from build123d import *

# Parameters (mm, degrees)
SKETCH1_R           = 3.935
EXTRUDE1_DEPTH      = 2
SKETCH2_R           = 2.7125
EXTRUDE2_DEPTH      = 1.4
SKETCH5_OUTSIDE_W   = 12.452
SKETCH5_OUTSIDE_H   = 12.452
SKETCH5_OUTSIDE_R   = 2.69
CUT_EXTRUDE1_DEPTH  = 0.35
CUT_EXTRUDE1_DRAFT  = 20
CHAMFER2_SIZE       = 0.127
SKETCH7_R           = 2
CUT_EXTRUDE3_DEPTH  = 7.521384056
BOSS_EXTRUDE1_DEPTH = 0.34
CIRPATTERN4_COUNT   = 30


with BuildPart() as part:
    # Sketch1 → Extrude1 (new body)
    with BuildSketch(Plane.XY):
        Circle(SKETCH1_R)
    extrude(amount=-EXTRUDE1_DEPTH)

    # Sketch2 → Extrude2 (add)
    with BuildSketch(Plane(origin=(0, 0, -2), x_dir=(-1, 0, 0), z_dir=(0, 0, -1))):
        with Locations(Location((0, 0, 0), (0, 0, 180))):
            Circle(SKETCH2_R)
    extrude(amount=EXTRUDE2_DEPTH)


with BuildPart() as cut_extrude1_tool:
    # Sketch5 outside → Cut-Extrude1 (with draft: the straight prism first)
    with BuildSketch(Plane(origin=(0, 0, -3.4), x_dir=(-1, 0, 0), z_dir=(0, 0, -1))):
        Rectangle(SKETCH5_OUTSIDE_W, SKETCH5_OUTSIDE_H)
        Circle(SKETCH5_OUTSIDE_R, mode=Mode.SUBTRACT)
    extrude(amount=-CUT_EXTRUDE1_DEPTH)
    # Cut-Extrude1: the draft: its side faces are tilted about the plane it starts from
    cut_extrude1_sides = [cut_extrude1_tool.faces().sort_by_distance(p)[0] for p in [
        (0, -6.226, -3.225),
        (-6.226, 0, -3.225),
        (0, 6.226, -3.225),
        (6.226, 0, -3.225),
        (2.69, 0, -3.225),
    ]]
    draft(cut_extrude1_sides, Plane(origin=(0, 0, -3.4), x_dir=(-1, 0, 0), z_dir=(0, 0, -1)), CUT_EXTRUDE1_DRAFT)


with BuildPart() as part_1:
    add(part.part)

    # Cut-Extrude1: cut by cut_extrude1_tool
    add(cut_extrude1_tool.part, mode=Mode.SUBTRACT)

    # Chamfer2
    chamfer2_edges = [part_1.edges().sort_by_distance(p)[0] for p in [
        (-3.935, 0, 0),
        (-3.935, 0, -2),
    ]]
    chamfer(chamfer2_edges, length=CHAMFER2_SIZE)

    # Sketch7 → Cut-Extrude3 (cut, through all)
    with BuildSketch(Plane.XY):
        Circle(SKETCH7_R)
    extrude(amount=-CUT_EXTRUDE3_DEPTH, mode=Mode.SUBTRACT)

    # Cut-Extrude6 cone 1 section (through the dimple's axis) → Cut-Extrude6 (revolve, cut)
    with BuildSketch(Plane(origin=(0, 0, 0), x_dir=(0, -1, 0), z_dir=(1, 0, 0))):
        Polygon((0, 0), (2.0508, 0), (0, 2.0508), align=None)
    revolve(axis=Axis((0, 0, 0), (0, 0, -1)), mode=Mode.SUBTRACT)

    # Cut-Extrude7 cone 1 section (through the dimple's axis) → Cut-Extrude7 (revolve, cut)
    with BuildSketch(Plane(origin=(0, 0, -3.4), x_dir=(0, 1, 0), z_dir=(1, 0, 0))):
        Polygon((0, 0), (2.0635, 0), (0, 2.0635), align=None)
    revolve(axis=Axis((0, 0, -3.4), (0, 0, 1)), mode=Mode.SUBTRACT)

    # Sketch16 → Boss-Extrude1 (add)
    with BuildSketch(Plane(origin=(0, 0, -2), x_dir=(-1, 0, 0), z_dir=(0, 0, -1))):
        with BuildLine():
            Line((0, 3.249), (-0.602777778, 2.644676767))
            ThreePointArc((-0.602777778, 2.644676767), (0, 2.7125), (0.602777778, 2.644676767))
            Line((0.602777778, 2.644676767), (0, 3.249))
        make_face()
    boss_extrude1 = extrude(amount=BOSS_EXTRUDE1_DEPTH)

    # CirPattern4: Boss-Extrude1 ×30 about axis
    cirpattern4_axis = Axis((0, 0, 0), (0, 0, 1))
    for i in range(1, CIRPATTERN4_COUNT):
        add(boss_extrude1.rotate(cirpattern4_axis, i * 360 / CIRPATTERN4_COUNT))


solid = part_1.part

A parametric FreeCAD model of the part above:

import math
import FreeCAD as App
import Part
import Sketcher


def edges_at(feature, points):
    """Names of the edges that pass closest to the given points."""
    edges = feature.Shape.Edges
    near = lambda p: min(range(len(edges)), key=lambda i: edges[i].distToShape(Part.Vertex(*p))[0])
    return sorted({f"Edge{near(p) + 1}" for p in points})


def faces_at(feature, points):
    """Names of the faces that lie closest to the given points."""
    faces = feature.Shape.Faces
    near = lambda p: min(range(len(faces)), key=lambda i: faces[i].distToShape(Part.Vertex(*p))[0])
    return sorted({f"Face{near(p) + 1}" for p in points})


def add_polygon(sketch, points):
    """Adds a closed chain of lines whose ends are joined by coincident constraints."""
    first, n = sketch.GeometryCount, len(points)
    for a, b in zip(points, points[1:] + points[:1]):
        sketch.addGeometry(Part.LineSegment(App.Vector(*a, 0), App.Vector(*b, 0)), False)
    for i in range(n):
        sketch.addConstraint(Sketcher.Constraint("Coincident", first + i, 2, first + (i + 1) % n, 1))

doc = App.newDocument("Part")
params = doc.addObject("Spreadsheet::Sheet", "Params")
for row, (alias, value) in enumerate([
    ("sketch1_diameter", "7.87 mm"),
    ("pad1_length", "2 mm"),
    ("pad2_length", "1.4 mm"),
    ("sketch3_diameter", "5.38 mm"),
    ("pad3_length", "0.35 mm"),
    ("draft_angle", "20 deg"),
    ("chamfer_size", "0.127 mm"),
    ("sketch4_diameter", "4 mm"),
    ("groove_angle", "360 deg"),
    ("groove2_angle", "360 deg"),
    ("pad4_length", "0.34 mm"),
], start=1):
    params.set(f"A{row}", alias)
    params.set(f"B{row}", "=" + value)
    params.setAlias(f"B{row}", alias)

body = doc.addObject("PartDesign::Body", "Body")

sketch1 = doc.addObject("Sketcher::SketchObject", "Sketch")
body.addObject(sketch1)
sketch1.AttachmentSupport = (doc.XY_Plane, [""])
sketch1.MapMode = "FlatFace"
sketch1.addGeometry(Part.Circle(App.Vector(0, 0, 0), App.Vector(0, 0, 1), 3.9), False)
sketch1.addConstraint([
    Sketcher.Constraint("Coincident", 0, 3, -1, 1),
    Sketcher.Constraint("Diameter", 0, 7.87),
])
sketch1.setExpression("Constraints[1]", "Params.sketch1_diameter")
pad1 = doc.addObject("PartDesign::Pad", "Pad")
body.addObject(pad1)
pad1.Profile = sketch1
pad1.setExpression("Length", "Params.pad1_length")
pad1.Reversed = True

sketch2 = doc.addObject("Sketcher::SketchObject", "Sketch001")
body.addObject(sketch2)
sketch2.AttachmentSupport = (doc.XY_Plane, [""])
sketch2.MapMode = "FlatFace"
sketch2.AttachmentOffset = App.Placement(App.Vector(0, 0, -2), App.Rotation())
sketch2.addGeometry(Part.Circle(App.Vector(0, 0, 0), App.Vector(0, 0, 1), 2.7), False)
sketch2.addConstraint([
    Sketcher.Constraint("Coincident", 0, 3, -1, 1),
    Sketcher.Constraint("Diameter", 0, 5.425),
])
pad2 = doc.addObject("PartDesign::Pad", "Pad001")
body.addObject(pad2)
pad2.Profile = sketch2
pad2.setExpression("Length", "Params.pad2_length")
pad2.Reversed = True
body2 = doc.addObject("PartDesign::Body", "Body001")

sketch3 = doc.addObject("Sketcher::SketchObject", "Sketch002")
body2.addObject(sketch3)
sketch3.AttachmentSupport = (doc.getObject("XY_Plane001"), [""])
sketch3.MapMode = "FlatFace"
sketch3.AttachmentOffset = App.Placement(App.Vector(0, 0, -3.4), App.Rotation())
add_polygon(sketch3, [(6.2, 6.2), (6.2, -6.2), (-6.2, -6.2), (-6.2, 6.2)])
sketch3.addGeometry(Part.Circle(App.Vector(0, 0, 0), App.Vector(0, 0, 1), 2.7), False)
sketch3.addConstraint([
    Sketcher.Constraint("Vertical", 0),
    Sketcher.Constraint("Horizontal", 1),
    Sketcher.Constraint("Vertical", 2),
    Sketcher.Constraint("Horizontal", 3),
    Sketcher.Constraint("Coincident", 4, 3, -1, 1),
    Sketcher.Constraint("Symmetric", 0, 2, 2, 2, -1, 1),
    Sketcher.Constraint("Equal", 3, 0),
    Sketcher.Constraint("Diameter", 4, 5.38),
    Sketcher.Constraint("DistanceX", 1, 2, 1, 1, 12.452),
])
sketch3.setExpression("Constraints[11]", "Params.sketch3_diameter")
pad3 = doc.addObject("PartDesign::Pad", "Pad002")
body2.addObject(pad3)
pad3.Profile = sketch3
pad3.setExpression("Length", "Params.pad3_length")
doc.recompute()

datumplane = doc.addObject("PartDesign::Plane", "DatumPlane")
body2.addObject(datumplane)
datumplane.AttachmentSupport = (doc.getObject("XY_Plane001"), [""])
datumplane.MapMode = "FlatFace"
datumplane.AttachmentOffset = App.Placement(App.Vector(0, 0, -3.4), App.Rotation())
draft = doc.addObject("PartDesign::Draft", "Draft")
body2.addObject(draft)
draft.Base = (pad3, faces_at(pad3, [
    (0, -6.226, -3.225),
    (-6.226, 0, -3.225),
    (0, 6.226, -3.225),
    (6.226, 0, -3.225),
    (2.69, 0, -3.225),
]))
draft.NeutralPlane = (datumplane, [""])
draft.setExpression("Angle", "Params.draft_angle")
draft.Reversed = True
doc.recompute()

boolean = doc.addObject("PartDesign::Boolean", "Boolean")
body.addObject(boolean)
boolean.Type = "Cut"
boolean.addObjects([body2])
doc.recompute()

chamfer = doc.addObject("PartDesign::Chamfer", "Chamfer")
body.addObject(chamfer)
chamfer.Base = (boolean, edges_at(boolean, [(-3.935, 0, 0), (-3.935, 0, -2)]))
chamfer.setExpression("Size", "Params.chamfer_size")

sketch4 = doc.addObject("Sketcher::SketchObject", "Sketch003")
body.addObject(sketch4)
sketch4.AttachmentSupport = (doc.XY_Plane, [""])
sketch4.MapMode = "FlatFace"
sketch4.addGeometry(Part.Circle(App.Vector(0, 0, 0), App.Vector(0, 0, 1), 2), False)
sketch4.addConstraint([
    Sketcher.Constraint("Coincident", 0, 3, -1, 1),
    Sketcher.Constraint("Diameter", 0, 4.0),
])
sketch4.setExpression("Constraints[1]", "Params.sketch4_diameter")
pocket1 = doc.addObject("PartDesign::Pocket", "Pocket")
body.addObject(pocket1)
pocket1.Profile = sketch4
pocket1.Type = "ThroughAll"

sketch5 = doc.addObject("Sketcher::SketchObject", "Sketch004")
body.addObject(sketch5)
sketch5.AttachmentSupport = (doc.YZ_Plane, [""])
sketch5.MapMode = "FlatFace"
add_polygon(sketch5, [(0, 0), (-2.1, 0), (0, -2.1)])
sketch5.addConstraint([
    Sketcher.Constraint("Horizontal", 0),
    Sketcher.Constraint("Vertical", 2),
    Sketcher.Constraint("Coincident", 2, 2, -1, 1),
    Sketcher.Constraint("Equal", 0, 2),
    Sketcher.Constraint("DistanceX", 0, 2, 0, 1, 2.0508),
])
groove = doc.addObject("PartDesign::Groove", "Groove")
body.addObject(groove)
groove.Profile = sketch5
groove.ReferenceAxis = (sketch5, ["V_Axis"])
groove.setExpression("Angle", "Params.groove_angle")

sketch6 = doc.addObject("Sketcher::SketchObject", "Sketch005")
body.addObject(sketch6)
sketch6.AttachmentSupport = (doc.YZ_Plane, [""])
sketch6.MapMode = "FlatFace"
add_polygon(sketch6, [(0, -3.4), (2.1, -3.4), (0, -1.3)])
sketch6.addConstraint([
    Sketcher.Constraint("Horizontal", 0),
    Sketcher.Constraint("Vertical", 2),
    Sketcher.Constraint("PointOnObject", 1, 2, -2),
    Sketcher.Constraint("Equal", 0, 2),
    Sketcher.Constraint("DistanceY", 0, 2, -1, 1, 3.4),
    Sketcher.Constraint("DistanceX", 0, 1, 0, 2, 2.0635),
])
groove2 = doc.addObject("PartDesign::Groove", "Groove001")
body.addObject(groove2)
groove2.Profile = sketch6
groove2.ReferenceAxis = (sketch6, ["V_Axis"])
groove2.setExpression("Angle", "Params.groove2_angle")

sketch7 = doc.addObject("Sketcher::SketchObject", "Sketch006")
body.addObject(sketch7)
sketch7.AttachmentSupport = (doc.XY_Plane, [""])
sketch7.MapMode = "FlatFace"
sketch7.AttachmentOffset = App.Placement(App.Vector(0, 0, -2), App.Rotation())
sketch7.addGeometry([
    Part.LineSegment(App.Vector(0, 3.2, 0), App.Vector(0.6, 2.6, 0)),
    Part.ArcOfCircle(Part.Circle(App.Vector(0, 0, 0), App.Vector(0, 0, 1), 2.7), math.radians(77), math.radians(103)),
    Part.LineSegment(App.Vector(-0.6, 2.6, 0), App.Vector(0, 3.2, 0)),
], False)
sketch7.addConstraint([
    Sketcher.Constraint("Coincident", 0, 2, 1, 1),
    Sketcher.Constraint("Coincident", 1, 2, 2, 1),
    Sketcher.Constraint("Coincident", 2, 2, 0, 1),
    Sketcher.Constraint("Coincident", 1, 3, -1, 1),
    Sketcher.Constraint("PointOnObject", 2, 2, -2),
    Sketcher.Constraint("Horizontal", 0, 2, 1, 2),
    Sketcher.Constraint("Radius", 1, 2.7125),
    Sketcher.Constraint("DistanceY", -1, 1, 2, 2, 3.249),
    Sketcher.Constraint("Distance", 0, 0.85355),
])
pad4 = doc.addObject("PartDesign::Pad", "Pad003")
body.addObject(pad4)
pad4.Profile = sketch7
pad4.setExpression("Length", "Params.pad4_length")
pad4.Reversed = True
doc.recompute()

polarpattern = doc.addObject("PartDesign::PolarPattern", "PolarPattern")
body.addObject(polarpattern)
polarpattern.Originals = [pad4]
polarpattern.Axis = (doc.Z_Axis, [""])
polarpattern.Angle = 360
polarpattern.Occurrences = 30
body.Tip = polarpattern

doc.recompute()
